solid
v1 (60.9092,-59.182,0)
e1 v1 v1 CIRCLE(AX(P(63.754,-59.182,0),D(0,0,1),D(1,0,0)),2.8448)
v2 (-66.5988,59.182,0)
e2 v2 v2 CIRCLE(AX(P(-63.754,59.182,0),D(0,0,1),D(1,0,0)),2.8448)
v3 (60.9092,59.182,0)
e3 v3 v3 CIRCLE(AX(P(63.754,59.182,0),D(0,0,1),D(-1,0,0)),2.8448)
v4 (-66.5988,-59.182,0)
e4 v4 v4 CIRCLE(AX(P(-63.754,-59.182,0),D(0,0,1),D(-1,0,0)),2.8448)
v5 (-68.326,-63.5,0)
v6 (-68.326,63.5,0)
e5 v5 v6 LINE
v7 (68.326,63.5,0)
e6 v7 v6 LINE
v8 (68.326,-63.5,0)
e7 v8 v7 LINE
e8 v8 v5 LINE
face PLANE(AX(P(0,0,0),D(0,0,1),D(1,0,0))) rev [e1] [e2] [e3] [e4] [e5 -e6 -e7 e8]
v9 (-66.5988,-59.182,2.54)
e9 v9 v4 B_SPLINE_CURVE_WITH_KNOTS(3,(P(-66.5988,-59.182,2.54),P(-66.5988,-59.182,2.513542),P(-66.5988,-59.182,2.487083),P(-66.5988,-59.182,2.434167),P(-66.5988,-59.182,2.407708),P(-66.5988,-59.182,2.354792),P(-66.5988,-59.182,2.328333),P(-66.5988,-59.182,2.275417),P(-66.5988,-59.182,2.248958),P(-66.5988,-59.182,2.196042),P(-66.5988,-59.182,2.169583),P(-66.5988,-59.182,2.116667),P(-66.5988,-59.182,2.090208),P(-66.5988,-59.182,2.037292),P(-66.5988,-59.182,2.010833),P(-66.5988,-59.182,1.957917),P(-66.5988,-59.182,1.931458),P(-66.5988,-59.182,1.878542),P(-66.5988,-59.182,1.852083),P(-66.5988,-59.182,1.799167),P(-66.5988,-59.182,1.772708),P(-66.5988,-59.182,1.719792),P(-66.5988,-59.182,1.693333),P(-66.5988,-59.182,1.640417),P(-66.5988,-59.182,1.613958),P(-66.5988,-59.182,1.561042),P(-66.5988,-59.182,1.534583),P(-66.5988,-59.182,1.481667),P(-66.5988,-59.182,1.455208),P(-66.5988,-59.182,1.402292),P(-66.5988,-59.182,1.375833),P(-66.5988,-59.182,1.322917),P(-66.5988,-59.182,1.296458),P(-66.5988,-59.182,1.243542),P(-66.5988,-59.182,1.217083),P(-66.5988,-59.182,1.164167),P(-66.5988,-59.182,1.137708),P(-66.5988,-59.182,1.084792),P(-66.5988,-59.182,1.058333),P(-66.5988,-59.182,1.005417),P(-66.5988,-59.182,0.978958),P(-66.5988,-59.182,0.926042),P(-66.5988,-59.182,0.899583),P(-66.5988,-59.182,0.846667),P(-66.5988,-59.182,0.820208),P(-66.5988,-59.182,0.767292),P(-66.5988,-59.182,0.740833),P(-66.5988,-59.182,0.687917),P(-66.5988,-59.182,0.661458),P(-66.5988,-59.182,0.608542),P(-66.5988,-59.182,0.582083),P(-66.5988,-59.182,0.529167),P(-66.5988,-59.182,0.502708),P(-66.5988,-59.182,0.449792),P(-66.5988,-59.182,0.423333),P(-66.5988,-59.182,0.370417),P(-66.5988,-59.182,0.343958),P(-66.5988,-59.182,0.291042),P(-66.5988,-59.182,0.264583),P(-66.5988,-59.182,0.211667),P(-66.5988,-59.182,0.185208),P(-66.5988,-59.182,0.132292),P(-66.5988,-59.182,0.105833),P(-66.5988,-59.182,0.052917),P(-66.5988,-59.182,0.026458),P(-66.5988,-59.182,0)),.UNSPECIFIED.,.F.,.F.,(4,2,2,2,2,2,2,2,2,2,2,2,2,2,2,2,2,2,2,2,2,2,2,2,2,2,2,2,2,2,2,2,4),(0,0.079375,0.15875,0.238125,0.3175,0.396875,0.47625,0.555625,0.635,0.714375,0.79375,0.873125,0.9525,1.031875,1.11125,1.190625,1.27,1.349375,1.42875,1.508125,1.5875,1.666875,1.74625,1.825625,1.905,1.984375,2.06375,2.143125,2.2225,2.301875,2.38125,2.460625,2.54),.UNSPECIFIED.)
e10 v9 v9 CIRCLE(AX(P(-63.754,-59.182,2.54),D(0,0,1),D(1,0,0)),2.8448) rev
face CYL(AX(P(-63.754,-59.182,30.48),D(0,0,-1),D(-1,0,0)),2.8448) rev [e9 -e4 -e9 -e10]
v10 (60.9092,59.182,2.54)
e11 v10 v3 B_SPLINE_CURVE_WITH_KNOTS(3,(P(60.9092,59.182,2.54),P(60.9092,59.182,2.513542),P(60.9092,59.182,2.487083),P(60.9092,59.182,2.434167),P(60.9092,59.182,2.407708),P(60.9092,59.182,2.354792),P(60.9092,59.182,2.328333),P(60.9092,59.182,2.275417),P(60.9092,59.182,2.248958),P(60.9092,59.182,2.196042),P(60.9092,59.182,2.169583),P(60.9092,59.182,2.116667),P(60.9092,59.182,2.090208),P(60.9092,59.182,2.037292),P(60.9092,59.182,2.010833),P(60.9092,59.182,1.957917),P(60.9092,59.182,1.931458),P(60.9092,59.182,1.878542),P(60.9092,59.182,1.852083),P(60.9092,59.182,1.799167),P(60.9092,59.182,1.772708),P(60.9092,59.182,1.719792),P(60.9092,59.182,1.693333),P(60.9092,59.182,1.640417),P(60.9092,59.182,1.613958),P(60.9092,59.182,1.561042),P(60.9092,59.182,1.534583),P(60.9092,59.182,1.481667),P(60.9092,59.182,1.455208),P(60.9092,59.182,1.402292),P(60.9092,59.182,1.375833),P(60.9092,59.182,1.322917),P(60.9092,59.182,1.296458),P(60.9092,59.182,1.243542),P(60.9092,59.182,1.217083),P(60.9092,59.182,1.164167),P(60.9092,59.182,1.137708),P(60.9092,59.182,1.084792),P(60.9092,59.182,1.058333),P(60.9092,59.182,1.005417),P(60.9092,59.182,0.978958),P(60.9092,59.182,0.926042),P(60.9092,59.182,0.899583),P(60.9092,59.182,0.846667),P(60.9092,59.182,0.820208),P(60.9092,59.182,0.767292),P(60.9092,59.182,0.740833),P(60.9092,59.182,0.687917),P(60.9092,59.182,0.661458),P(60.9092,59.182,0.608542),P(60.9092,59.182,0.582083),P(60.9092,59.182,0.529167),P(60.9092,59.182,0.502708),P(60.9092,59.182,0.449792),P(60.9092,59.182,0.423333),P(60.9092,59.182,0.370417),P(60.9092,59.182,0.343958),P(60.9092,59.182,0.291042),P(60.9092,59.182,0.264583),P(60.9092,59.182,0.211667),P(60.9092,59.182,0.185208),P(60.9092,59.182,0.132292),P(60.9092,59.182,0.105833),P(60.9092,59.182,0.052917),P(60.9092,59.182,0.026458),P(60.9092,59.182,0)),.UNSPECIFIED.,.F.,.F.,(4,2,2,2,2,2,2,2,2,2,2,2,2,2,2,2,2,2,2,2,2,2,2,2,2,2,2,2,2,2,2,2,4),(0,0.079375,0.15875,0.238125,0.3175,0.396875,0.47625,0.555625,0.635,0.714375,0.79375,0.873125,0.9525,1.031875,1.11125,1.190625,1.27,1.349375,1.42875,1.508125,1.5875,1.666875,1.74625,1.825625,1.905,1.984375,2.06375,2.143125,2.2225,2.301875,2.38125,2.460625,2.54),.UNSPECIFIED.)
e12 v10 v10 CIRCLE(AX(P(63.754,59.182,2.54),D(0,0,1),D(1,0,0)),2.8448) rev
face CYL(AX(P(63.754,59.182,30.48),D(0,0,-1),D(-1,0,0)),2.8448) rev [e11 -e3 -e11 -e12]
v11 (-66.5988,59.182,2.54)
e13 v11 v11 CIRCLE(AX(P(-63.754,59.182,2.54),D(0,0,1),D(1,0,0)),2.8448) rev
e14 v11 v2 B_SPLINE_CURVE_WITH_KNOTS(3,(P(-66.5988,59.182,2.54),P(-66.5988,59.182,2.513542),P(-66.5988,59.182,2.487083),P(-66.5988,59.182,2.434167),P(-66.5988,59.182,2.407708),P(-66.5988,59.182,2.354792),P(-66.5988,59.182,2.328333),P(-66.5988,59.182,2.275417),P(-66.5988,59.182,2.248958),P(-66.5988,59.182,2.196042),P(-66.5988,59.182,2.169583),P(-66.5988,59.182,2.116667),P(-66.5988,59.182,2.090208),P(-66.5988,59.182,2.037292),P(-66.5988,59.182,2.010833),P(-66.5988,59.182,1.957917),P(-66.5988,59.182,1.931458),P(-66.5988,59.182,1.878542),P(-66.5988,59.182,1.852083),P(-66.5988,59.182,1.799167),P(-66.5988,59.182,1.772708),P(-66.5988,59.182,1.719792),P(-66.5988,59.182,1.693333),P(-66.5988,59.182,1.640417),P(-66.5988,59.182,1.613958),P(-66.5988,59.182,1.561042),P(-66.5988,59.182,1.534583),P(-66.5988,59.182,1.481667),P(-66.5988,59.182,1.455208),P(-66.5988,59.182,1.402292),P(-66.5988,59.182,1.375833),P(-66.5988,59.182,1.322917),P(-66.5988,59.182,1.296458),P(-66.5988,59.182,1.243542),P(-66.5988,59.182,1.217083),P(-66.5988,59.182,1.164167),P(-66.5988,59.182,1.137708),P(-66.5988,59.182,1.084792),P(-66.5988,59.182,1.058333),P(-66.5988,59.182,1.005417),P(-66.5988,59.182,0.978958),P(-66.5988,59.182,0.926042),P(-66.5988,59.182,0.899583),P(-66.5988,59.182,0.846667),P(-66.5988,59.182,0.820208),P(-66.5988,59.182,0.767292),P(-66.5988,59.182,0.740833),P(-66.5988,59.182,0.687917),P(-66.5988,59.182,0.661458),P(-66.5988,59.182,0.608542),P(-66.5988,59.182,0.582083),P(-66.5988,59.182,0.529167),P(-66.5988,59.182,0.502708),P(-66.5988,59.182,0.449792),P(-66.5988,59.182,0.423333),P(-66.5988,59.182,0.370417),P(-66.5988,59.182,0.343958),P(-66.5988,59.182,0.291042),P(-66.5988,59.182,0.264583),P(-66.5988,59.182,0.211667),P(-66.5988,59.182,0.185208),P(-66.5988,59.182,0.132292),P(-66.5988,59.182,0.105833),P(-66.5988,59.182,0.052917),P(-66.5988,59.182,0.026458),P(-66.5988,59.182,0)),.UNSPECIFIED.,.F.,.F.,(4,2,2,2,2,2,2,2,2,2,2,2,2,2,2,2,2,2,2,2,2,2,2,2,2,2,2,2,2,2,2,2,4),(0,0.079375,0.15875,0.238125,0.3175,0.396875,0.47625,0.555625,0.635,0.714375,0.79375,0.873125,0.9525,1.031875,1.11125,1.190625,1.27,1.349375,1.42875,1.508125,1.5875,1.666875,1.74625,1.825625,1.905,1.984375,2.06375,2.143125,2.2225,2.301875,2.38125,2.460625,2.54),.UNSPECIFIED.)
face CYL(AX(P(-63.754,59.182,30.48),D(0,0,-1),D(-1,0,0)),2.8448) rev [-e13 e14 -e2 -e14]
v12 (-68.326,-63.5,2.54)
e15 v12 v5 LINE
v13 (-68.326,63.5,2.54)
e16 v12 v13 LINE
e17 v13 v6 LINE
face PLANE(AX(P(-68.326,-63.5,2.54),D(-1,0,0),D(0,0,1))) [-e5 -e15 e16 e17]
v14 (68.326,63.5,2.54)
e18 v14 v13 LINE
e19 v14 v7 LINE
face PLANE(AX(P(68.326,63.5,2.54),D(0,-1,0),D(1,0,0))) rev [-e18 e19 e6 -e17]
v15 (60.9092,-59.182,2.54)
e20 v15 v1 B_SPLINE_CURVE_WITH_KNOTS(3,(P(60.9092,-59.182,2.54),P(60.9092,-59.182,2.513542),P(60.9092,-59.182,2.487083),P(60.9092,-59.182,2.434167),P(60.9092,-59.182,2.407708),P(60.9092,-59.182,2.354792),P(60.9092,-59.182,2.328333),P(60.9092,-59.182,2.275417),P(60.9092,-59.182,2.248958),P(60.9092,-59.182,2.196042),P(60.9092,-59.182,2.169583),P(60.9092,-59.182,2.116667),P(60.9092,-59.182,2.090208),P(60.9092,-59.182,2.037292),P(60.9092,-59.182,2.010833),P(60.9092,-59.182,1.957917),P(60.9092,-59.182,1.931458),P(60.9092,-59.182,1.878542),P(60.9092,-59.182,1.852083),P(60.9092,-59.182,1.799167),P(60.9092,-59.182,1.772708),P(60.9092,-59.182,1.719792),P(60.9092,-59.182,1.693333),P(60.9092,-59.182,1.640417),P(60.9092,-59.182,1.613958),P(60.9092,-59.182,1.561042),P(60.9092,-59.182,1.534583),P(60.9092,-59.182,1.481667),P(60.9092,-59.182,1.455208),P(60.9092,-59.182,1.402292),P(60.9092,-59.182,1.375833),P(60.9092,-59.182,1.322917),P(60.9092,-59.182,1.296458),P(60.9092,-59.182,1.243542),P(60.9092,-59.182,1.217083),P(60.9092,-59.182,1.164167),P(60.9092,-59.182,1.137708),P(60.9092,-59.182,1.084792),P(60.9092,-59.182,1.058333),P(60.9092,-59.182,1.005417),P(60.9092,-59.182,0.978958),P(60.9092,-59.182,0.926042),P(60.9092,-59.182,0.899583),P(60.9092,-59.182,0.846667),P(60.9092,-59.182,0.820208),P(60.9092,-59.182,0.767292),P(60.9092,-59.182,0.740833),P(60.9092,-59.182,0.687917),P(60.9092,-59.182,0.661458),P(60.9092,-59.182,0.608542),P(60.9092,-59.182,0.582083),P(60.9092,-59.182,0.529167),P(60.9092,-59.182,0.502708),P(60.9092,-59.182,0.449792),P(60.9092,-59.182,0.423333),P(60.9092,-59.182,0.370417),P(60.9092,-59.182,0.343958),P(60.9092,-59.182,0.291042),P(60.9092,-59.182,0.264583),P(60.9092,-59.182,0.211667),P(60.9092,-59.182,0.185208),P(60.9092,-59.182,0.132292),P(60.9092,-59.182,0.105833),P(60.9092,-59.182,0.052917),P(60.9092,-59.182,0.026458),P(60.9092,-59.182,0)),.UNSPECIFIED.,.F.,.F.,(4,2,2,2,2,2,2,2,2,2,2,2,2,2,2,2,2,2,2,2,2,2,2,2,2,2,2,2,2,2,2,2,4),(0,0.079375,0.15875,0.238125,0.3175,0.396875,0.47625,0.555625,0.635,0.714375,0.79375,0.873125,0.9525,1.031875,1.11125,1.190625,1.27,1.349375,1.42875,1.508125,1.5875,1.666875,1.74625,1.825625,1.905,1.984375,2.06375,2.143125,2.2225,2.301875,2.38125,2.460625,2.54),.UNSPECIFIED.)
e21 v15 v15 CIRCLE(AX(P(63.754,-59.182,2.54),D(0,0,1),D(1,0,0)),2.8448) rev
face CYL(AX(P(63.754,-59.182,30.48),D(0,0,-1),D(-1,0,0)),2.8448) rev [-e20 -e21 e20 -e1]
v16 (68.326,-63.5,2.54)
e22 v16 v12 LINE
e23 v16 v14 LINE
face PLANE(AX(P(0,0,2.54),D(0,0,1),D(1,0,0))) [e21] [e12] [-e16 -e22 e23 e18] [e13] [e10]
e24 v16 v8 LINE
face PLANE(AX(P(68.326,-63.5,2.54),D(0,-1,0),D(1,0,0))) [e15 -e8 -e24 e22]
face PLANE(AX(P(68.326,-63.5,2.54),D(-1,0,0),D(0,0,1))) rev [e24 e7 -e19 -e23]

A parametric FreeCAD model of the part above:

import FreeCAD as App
import Part
import Sketcher

V = App.Vector
Q = App.Units.Quantity

doc = App.newDocument("Part")
body = doc.addObject("PartDesign::Body", "Body")

sketch1 = doc.addObject("Sketcher::SketchObject", "Sketch")
body.addObject(sketch1)
sketch1.AttachmentSupport = (doc.XY_Plane, [""])
sketch1.MapMode = "FlatFace"
sketch1.addGeometry(Part.LineSegment(V(-68, 64, 0), V(-68, -64, 0)), False)
sketch1.addGeometry(Part.LineSegment(V(-68, -64, 0), V(68, -64, 0)), False)
sketch1.addGeometry(Part.LineSegment(V(68, -64, 0), V(68, 64, 0)), False)
sketch1.addGeometry(Part.LineSegment(V(68, 64, 0), V(-68, 64, 0)), False)
sketch1.addConstraint(Sketcher.Constraint("Coincident", 0, 2, 1, 1))
sketch1.addConstraint(Sketcher.Constraint("Coincident", 1, 2, 2, 1))
sketch1.addConstraint(Sketcher.Constraint("Coincident", 2, 2, 3, 1))
sketch1.addConstraint(Sketcher.Constraint("Coincident", 3, 2, 0, 1))
sketch1.addConstraint(Sketcher.Constraint("Vertical", 0))
sketch1.addConstraint(Sketcher.Constraint("Horizontal", 1))
sketch1.addConstraint(Sketcher.Constraint("Vertical", 2))
sketch1.addConstraint(Sketcher.Constraint("Horizontal", 3))
sketch1.addConstraint(Sketcher.Constraint("Symmetric", 0, 2, 2, 2, -1, 1))
sketch1.addConstraint(Sketcher.Constraint("DistanceY", 0, 2, 0, 1, Q("5 in")))
sketch1.addConstraint(Sketcher.Constraint("DistanceX", 1, 1, 1, 2, Q("5.38 in")))
pad1 = doc.addObject("PartDesign::Pad", "Pad")
body.addObject(pad1)
pad1.Profile = sketch1
pad1.Length = Q("0.1 in")

sketch2 = doc.addObject("Sketcher::SketchObject", "Sketch001")
body.addObject(sketch2)
sketch2.AttachmentSupport = (doc.XY_Plane, [""])
sketch2.MapMode = "FlatFace"
sketch2.addGeometry(Part.LineSegment(V(-88, 83.2, 0), V(-88, -83.2, 0)), False)
sketch2.addGeometry(Part.LineSegment(V(-88, -83.2, 0), V(88, -83.2, 0)), False)
sketch2.addGeometry(Part.LineSegment(V(88, -83.2, 0), V(88, 83.2, 0)), False)
sketch2.addGeometry(Part.LineSegment(V(88, 83.2, 0), V(-88, 83.2, 0)), False)
sketch2.addGeometry(Part.LineSegment(V(68.3, -63.5, 0), V(-68.3, -63.5, 0)), False)
sketch2.addGeometry(Part.LineSegment(V(-68.3, -63.5, 0), V(-68.3, 63.5, 0)), False)
sketch2.addGeometry(Part.LineSegment(V(-68.3, 63.5, 0), V(68.3, 63.5, 0)), False)
sketch2.addGeometry(Part.LineSegment(V(68.3, 63.5, 0), V(68.3, -63.5, 0)), False)
sketch2.addGeometry(Part.Circle(V(-63.8, 59.2, 0), V(0, 0, 1), 2.8), False)
sketch2.addGeometry(Part.Circle(V(63.8, 59.2, 0), V(0, 0, 1), 2.8), False)
sketch2.addGeometry(Part.Circle(V(63.8, -59.2, 0), V(0, 0, 1), 2.8), False)
sketch2.addGeometry(Part.Circle(V(-63.8, -59.2, 0), V(0, 0, 1), 2.8), False)
sketch2.addConstraint(Sketcher.Constraint("Coincident", 0, 2, 1, 1))
sketch2.addConstraint(Sketcher.Constraint("Coincident", 1, 2, 2, 1))
sketch2.addConstraint(Sketcher.Constraint("Coincident", 2, 2, 3, 1))
sketch2.addConstraint(Sketcher.Constraint("Coincident", 3, 2, 0, 1))
sketch2.addConstraint(Sketcher.Constraint("Coincident", 4, 2, 5, 1))
sketch2.addConstraint(Sketcher.Constraint("Coincident", 5, 2, 6, 1))
sketch2.addConstraint(Sketcher.Constraint("Coincident", 6, 2, 7, 1))
sketch2.addConstraint(Sketcher.Constraint("Coincident", 7, 2, 4, 1))
sketch2.addConstraint(Sketcher.Constraint("Vertical", 0))
sketch2.addConstraint(Sketcher.Constraint("Horizontal", 1))
sketch2.addConstraint(Sketcher.Constraint("Vertical", 2))
sketch2.addConstraint(Sketcher.Constraint("Horizontal", 3))
sketch2.addConstraint(Sketcher.Constraint("Horizontal", 4))
sketch2.addConstraint(Sketcher.Constraint("Vertical", 5))
sketch2.addConstraint(Sketcher.Constraint("Horizontal", 6))
sketch2.addConstraint(Sketcher.Constraint("Vertical", 7))
sketch2.addConstraint(Sketcher.Constraint("Equal", 8, 9))
sketch2.addConstraint(Sketcher.Constraint("Equal", 9, 10))
sketch2.addConstraint(Sketcher.Constraint("Equal", 10, 11))
sketch2.addConstraint(Sketcher.Constraint("Symmetric", 8, 3, 10, 3, -1, 1))
sketch2.addConstraint(Sketcher.Constraint("Symmetric", 9, 3, 11, 3, -1, 1))
sketch2.addConstraint(Sketcher.Constraint("Symmetric", 0, 2, 2, 2, -1, 1))
sketch2.addConstraint(Sketcher.Constraint("Symmetric", 4, 2, 6, 2, -1, 1))
sketch2.addConstraint(Sketcher.Constraint("Symmetric", 8, 3, 9, 3, -2))
sketch2.addConstraint(Sketcher.Constraint("DistanceY", 5, 1, 5, 2, Q("5 in")))
sketch2.addConstraint(Sketcher.Constraint("Diameter", 8, Q("0.224 in")))
sketch2.addConstraint(Sketcher.Constraint("DistanceX", 4, 2, 4, 1, Q("5.38 in")))
sketch2.addConstraint(Sketcher.Constraint("DistanceX", 4, 2, 10, 3, Q("5.2 in")))
sketch2.addConstraint(Sketcher.Constraint("DistanceY", -1, 1, 8, 3, Q("2.33 in")))
sketch2.addConstraint(Sketcher.Constraint("DistanceX", 1, 1, 1, 2, Q("175.966 mm")))
sketch2.addConstraint(Sketcher.Constraint("DistanceY", 0, 2, 0, 1, Q("166.314 mm")))
pocket1 = doc.addObject("PartDesign::Pocket", "Pocket")
body.addObject(pocket1)
pocket1.Profile = sketch2
pocket1.Length = Q("1.2 in")
pocket1.Reversed = True

doc.recompute()
